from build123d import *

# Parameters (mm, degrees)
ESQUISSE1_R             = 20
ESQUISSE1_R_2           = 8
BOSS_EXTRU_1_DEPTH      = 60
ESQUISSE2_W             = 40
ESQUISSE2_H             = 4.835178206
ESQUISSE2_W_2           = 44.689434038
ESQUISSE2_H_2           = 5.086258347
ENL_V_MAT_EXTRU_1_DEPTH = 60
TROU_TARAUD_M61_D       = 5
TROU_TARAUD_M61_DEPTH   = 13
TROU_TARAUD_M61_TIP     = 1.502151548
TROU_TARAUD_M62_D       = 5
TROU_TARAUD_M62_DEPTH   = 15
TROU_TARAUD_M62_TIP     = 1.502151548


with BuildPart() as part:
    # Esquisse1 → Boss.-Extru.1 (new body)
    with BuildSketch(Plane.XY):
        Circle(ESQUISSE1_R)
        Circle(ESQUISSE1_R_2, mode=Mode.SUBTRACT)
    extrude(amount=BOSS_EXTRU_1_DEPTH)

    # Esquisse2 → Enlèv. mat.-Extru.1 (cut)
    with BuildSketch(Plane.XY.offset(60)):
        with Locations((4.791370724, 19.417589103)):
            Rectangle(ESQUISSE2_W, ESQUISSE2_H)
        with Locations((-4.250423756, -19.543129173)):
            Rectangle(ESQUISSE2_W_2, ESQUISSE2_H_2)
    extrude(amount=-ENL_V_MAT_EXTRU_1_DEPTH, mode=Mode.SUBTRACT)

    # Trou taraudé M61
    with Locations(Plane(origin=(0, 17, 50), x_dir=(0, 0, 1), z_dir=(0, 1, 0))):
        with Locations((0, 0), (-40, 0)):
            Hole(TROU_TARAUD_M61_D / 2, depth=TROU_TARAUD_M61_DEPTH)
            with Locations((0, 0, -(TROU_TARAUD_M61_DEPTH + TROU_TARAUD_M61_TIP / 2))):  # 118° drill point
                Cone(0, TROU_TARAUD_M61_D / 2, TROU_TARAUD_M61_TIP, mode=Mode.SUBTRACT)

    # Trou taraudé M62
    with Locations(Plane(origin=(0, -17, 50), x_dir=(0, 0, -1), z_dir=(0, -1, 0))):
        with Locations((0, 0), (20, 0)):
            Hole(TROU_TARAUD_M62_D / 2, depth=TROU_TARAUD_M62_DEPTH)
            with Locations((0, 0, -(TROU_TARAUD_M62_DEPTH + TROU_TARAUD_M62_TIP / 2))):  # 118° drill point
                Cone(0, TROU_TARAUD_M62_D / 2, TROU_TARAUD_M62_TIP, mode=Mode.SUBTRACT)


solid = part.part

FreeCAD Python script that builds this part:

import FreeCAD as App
import Part
import Sketcher
Q = App.Units.Quantity

doc = App.newDocument("Part")
body = doc.addObject("PartDesign::Body", "Body")

# Sketch on XY plane
sketch1 = body.newObject("Sketcher::SketchObject", "Sketch")
sketch1.AttachmentSupport = (doc.getObject("XY_Plane"), [""])
sketch1.MapMode = "FlatFace"
sketch1.addGeometry(Part.Circle(App.Vector(0, 0, 0), App.Vector(0, 0, 1), 20), False)
sketch1.addGeometry(Part.Circle(App.Vector(0, 0, 0), App.Vector(0, 0, 1), 8), False)
sketch1.addConstraint(Sketcher.Constraint("Coincident", 0, 3, -1, 1))
sketch1.addConstraint(Sketcher.Constraint("Coincident", 1, 3, -1, 1))
sketch1.addConstraint(Sketcher.Constraint("Diameter", 0, Q("40 mm")))
sketch1.addConstraint(Sketcher.Constraint("Diameter", 1, Q("16 mm")))
pad1 = body.newObject("PartDesign::Pad", "Pad")
pad1.Profile = sketch1
pad1.Length = 60

# Sketch on XY plane
sketch2 = body.newObject("Sketcher::SketchObject", "Sketch001")
sketch2.AttachmentSupport = (doc.getObject("XY_Plane"), [""])
sketch2.MapMode = "FlatFace"
sketch2.AttachmentOffset = App.Placement(App.Vector(0, 0, 60), App.Rotation())
sketch2.addGeometry(Part.LineSegment(App.Vector(-15.2, 21.8, 0), App.Vector(-15.2, 17, 0)), False)
sketch2.addGeometry(Part.LineSegment(App.Vector(-15.2, 17, 0), App.Vector(24.8, 17, 0)), False)
sketch2.addGeometry(Part.LineSegment(App.Vector(24.8, 17, 0), App.Vector(24.8, 21.8, 0)), False)
sketch2.addGeometry(Part.LineSegment(App.Vector(24.8, 21.8, 0), App.Vector(-15.2, 21.8, 0)), False)
sketch2.addGeometry(Part.LineSegment(App.Vector(-26.6, -17, 0), App.Vector(-26.6, -22.1, 0)), False)
sketch2.addGeometry(Part.LineSegment(App.Vector(-26.6, -22.1, 0), App.Vector(18.1, -22.1, 0)), False)
sketch2.addGeometry(Part.LineSegment(App.Vector(18.1, -22.1, 0), App.Vector(18.1, -17, 0)), False)
sketch2.addGeometry(Part.LineSegment(App.Vector(18.1, -17, 0), App.Vector(-26.6, -17, 0)), False)
sketch2.addConstraint(Sketcher.Constraint("Coincident", 0, 2, 1, 1))
sketch2.addConstraint(Sketcher.Constraint("Coincident", 1, 2, 2, 1))
sketch2.addConstraint(Sketcher.Constraint("Coincident", 2, 2, 3, 1))
sketch2.addConstraint(Sketcher.Constraint("Coincident", 3, 2, 0, 1))
sketch2.addConstraint(Sketcher.Constraint("Coincident", 4, 2, 5, 1))
sketch2.addConstraint(Sketcher.Constraint("Coincident", 5, 2, 6, 1))
sketch2.addConstraint(Sketcher.Constraint("Coincident", 6, 2, 7, 1))
sketch2.addConstraint(Sketcher.Constraint("Coincident", 7, 2, 4, 1))
sketch2.addConstraint(Sketcher.Constraint("Vertical", 0))
sketch2.addConstraint(Sketcher.Constraint("Horizontal", 1))
sketch2.addConstraint(Sketcher.Constraint("Vertical", 2))
sketch2.addConstraint(Sketcher.Constraint("Horizontal", 3))
sketch2.addConstraint(Sketcher.Constraint("Vertical", 4))
sketch2.addConstraint(Sketcher.Constraint("Horizontal", 5))
sketch2.addConstraint(Sketcher.Constraint("Vertical", 6))
sketch2.addConstraint(Sketcher.Constraint("Horizontal", 7))
sketch2.addConstraint(Sketcher.Constraint("DistanceX", 1, 1, 1, 2, Q("40 mm")))
sketch2.addConstraint(Sketcher.Constraint("DistanceY", -1, 1, 0, 2, Q("17 mm")))
sketch2.addConstraint(Sketcher.Constraint("DistanceY", 6, 2, -1, 1, Q("17 mm")))
sketch2.addConstraint(Sketcher.Constraint("DistanceY", 0, 2, 0, 1, Q("4.835178 mm")))
sketch2.addConstraint(Sketcher.Constraint("DistanceY", 4, 2, 4, 1, Q("5.086258 mm")))
sketch2.addConstraint(Sketcher.Constraint("DistanceX", 5, 1, 5, 2, Q("44.689434 mm")))
sketch2.addConstraint(Sketcher.Constraint("DistanceX", 0, 2, -1, 1, Q("15.208629 mm")))
sketch2.addConstraint(Sketcher.Constraint("DistanceX", 4, 2, -1, 1, Q("26.595141 mm")))
pocket1 = body.newObject("PartDesign::Pocket", "Pocket")
pocket1.Profile = sketch2
pocket1.Length = 60

# Sketch on XZ plane
sketch3 = body.newObject("Sketcher::SketchObject", "Sketch002")
sketch3.AttachmentSupport = (doc.getObject("XZ_Plane"), [""])
sketch3.MapMode = "FlatFace"
sketch3.AttachmentOffset = App.Placement(App.Vector(0, 0, -17), App.Rotation())
sketch3.addGeometry(Part.Circle(App.Vector(0, 50, 0), App.Vector(0, 0, 1), 2.5), False)
sketch3.addGeometry(Part.Circle(App.Vector(0, 10, 0), App.Vector(0, 0, 1), 2.5), False)
sketch3.addConstraint(Sketcher.Constraint("Equal", 0, 1))
sketch3.addConstraint(Sketcher.Constraint("PointOnObject", 0, 3, -2))
sketch3.addConstraint(Sketcher.Constraint("PointOnObject", 1, 3, -2))
sketch3.addConstraint(Sketcher.Constraint("Diameter", 0, Q("5 mm")))
sketch3.addConstraint(Sketcher.Constraint("DistanceY", -1, 1, 0, 3, Q("50 mm")))
sketch3.addConstraint(Sketcher.Constraint("DistanceY", -1, 1, 1, 3, Q("10 mm")))
doc.recompute()
hole = body.newObject("PartDesign::Hole", "Hole")
hole.Profile = sketch3
hole.ThreadType = "None"
hole.Diameter = 5
hole.DepthType = "Dimension"
hole.Depth = 13
hole.DrillPoint = "Angled"
hole.DrillPointAngle = 118
hole.Reversed = True

# Sketch on XZ plane
sketch4 = body.newObject("Sketcher::SketchObject", "Sketch003")
sketch4.AttachmentSupport = (doc.getObject("XZ_Plane"), [""])
sketch4.MapMode = "FlatFace"
sketch4.AttachmentOffset = App.Placement(App.Vector(0, 0, 17), App.Rotation())
sketch4.addGeometry(Part.Circle(App.Vector(0, 50, 0), App.Vector(0, 0, 1), 2.5), False)
sketch4.addGeometry(Part.Circle(App.Vector(0, 30, 0), App.Vector(0, 0, 1), 2.5), False)
sketch4.addConstraint(Sketcher.Constraint("Equal", 0, 1))
sketch4.addConstraint(Sketcher.Constraint("PointOnObject", 0, 3, -2))
sketch4.addConstraint(Sketcher.Constraint("PointOnObject", 1, 3, -2))
sketch4.addConstraint(Sketcher.Constraint("Diameter", 0, Q("5 mm")))
sketch4.addConstraint(Sketcher.Constraint("DistanceY", -1, 1, 0, 3, Q("50 mm")))
sketch4.addConstraint(Sketcher.Constraint("DistanceY", -1, 1, 1, 3, Q("30 mm")))
doc.recompute()
hole2 = body.newObject("PartDesign::Hole", "Hole001")
hole2.Profile = sketch4
hole2.ThreadType = "None"
hole2.Diameter = 5
hole2.DepthType = "Dimension"
hole2.Depth = 15
hole2.DrillPoint = "Angled"
hole2.DrillPointAngle = 118

doc.recompute()
